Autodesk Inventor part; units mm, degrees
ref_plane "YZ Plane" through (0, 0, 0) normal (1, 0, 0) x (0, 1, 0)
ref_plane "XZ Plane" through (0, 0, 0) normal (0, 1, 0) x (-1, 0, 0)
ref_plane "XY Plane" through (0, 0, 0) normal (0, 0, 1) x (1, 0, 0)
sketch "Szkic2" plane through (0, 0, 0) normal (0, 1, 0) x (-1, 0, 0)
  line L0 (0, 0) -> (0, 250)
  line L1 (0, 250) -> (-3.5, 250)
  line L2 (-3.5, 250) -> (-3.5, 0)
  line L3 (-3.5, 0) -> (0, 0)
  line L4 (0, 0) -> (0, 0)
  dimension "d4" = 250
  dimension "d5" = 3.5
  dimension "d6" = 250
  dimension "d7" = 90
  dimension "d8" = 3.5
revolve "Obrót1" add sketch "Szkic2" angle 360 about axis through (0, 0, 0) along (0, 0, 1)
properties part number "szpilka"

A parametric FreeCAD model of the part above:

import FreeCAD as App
import Part
import Sketcher

doc = App.newDocument("Part")
body = doc.addObject("PartDesign::Body", "Body")

# Sketch on XZ plane
sketch1 = body.newObject("Sketcher::SketchObject", "Sketch")
sketch1.AttachmentSupport = (doc.getObject("XZ_Plane"), [""])
sketch1.MapMode = "FlatFace"
sketch1.addGeometry([
    Part.LineSegment(App.Vector(3.5, 0, 0), App.Vector(0, 0, 0)),
    Part.LineSegment(App.Vector(0, 0, 0), App.Vector(0, 250, 0)),
    Part.LineSegment(App.Vector(0, 250, 0), App.Vector(3.5, 250, 0)),
    Part.LineSegment(App.Vector(3.5, 250, 0), App.Vector(3.5, 0, 0)),
], False)
sketch1.addConstraint([
    Sketcher.Constraint("Coincident", 0, 2, 1, 1),
    Sketcher.Constraint("Coincident", 1, 2, 2, 1),
    Sketcher.Constraint("Coincident", 2, 2, 3, 1),
    Sketcher.Constraint("Coincident", 3, 2, 0, 1),
    Sketcher.Constraint("Horizontal", 0),
    Sketcher.Constraint("Vertical", 1),
    Sketcher.Constraint("Horizontal", 2),
    Sketcher.Constraint("Vertical", 3),
    Sketcher.Constraint("Coincident", 0, 2, -1, 1),
    Sketcher.Constraint("DistanceY", 1, 1, 1, 2, 250.0),
    Sketcher.Constraint("DistanceX", 0, 2, 0, 1, 3.5),
])
revolution = body.newObject("PartDesign::Revolution", "Revolution")
revolution.Profile = sketch1
revolution.ReferenceAxis = (sketch1, ["V_Axis"])
revolution.Angle = 360

doc.recompute()
